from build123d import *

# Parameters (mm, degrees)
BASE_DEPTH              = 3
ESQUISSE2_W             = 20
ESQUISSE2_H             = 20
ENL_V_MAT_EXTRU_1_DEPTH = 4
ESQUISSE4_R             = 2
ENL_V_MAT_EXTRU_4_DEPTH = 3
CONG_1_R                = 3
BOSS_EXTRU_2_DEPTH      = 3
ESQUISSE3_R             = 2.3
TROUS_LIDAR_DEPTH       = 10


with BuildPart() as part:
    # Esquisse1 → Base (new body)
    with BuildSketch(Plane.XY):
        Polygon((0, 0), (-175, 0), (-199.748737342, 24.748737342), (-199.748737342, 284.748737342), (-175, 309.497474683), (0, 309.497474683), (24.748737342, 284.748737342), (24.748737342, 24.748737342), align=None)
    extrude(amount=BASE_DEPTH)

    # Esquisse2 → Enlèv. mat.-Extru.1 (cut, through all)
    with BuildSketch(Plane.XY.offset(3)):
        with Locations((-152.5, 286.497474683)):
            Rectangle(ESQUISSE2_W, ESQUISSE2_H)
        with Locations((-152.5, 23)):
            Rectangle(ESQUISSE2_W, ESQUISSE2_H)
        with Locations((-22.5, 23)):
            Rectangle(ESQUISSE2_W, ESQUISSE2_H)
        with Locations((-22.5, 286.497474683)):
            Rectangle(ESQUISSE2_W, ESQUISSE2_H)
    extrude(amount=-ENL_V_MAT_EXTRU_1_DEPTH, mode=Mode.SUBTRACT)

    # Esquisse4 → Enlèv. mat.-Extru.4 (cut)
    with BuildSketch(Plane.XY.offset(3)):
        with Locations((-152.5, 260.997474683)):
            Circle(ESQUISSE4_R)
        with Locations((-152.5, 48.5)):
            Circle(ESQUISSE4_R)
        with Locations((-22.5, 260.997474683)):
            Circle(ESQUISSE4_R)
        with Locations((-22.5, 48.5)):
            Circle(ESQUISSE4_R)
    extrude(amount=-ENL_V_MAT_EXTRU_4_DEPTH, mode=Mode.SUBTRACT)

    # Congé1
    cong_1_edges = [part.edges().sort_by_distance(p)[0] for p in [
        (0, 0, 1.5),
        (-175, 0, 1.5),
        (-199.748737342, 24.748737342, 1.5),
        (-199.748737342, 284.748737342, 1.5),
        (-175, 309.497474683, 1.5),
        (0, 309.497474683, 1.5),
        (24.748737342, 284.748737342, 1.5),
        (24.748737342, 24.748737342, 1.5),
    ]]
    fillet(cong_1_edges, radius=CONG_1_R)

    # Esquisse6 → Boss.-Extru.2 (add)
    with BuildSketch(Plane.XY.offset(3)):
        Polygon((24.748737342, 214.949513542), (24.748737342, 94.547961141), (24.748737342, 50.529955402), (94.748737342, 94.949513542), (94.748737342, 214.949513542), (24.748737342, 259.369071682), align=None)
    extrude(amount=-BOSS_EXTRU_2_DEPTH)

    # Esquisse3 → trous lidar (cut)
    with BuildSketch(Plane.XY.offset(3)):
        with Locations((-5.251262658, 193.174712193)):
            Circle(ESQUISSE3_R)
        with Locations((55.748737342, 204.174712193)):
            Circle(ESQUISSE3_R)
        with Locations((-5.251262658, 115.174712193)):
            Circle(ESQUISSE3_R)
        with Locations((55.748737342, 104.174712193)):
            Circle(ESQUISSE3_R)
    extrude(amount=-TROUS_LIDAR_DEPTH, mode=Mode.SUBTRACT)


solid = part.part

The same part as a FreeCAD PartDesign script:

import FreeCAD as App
import Part
import Sketcher
from FreeCAD import Vector


def edges_at(feature, points):
    """Names of the edges that pass closest to the given points."""
    edges = feature.Shape.Edges
    near = lambda p: min(range(len(edges)), key=lambda i: edges[i].distToShape(Part.Vertex(*p))[0])
    return sorted({f"Edge{near(p) + 1}" for p in points})

doc = App.newDocument("Part")
body = doc.addObject("PartDesign::Body", "Body")

# Sketch on XY plane
sketch1 = doc.addObject("Sketcher::SketchObject", "Sketch")
body.addObject(sketch1)
sketch1.AttachmentSupport = (doc.XY_Plane, [""])
sketch1.MapMode = "FlatFace"
sketch1.addGeometry([
    Part.LineSegment(Vector(-175, 0, 0), Vector(0, 0, 0)),  # 0
    Part.LineSegment(Vector(0, 0, 0), Vector(25, 25, 0)),  # 1
    Part.LineSegment(Vector(25, 25, 0), Vector(25, 285, 0)),  # 2
    Part.LineSegment(Vector(25, 285, 0), Vector(0, 309, 0)),  # 3
    Part.LineSegment(Vector(0, 309, 0), Vector(-175, 309, 0)),  # 4
    Part.LineSegment(Vector(-175, 309, 0), Vector(-200, 285, 0)),  # 5
    Part.LineSegment(Vector(-200, 285, 0), Vector(-200, 25, 0)),  # 6
    Part.LineSegment(Vector(-200, 25, 0), Vector(-175, 0, 0)),  # 7
], False)
sketch1.addConstraint([
    Sketcher.Constraint("Coincident", 0, 2, 1, 1),
    Sketcher.Constraint("Coincident", 1, 2, 2, 1),
    Sketcher.Constraint("Coincident", 2, 2, 3, 1),
    Sketcher.Constraint("Coincident", 3, 2, 4, 1),
    Sketcher.Constraint("Coincident", 4, 2, 5, 1),
    Sketcher.Constraint("Coincident", 5, 2, 6, 1),
    Sketcher.Constraint("Coincident", 6, 2, 7, 1),
    Sketcher.Constraint("Coincident", 7, 2, 0, 1),
    Sketcher.Constraint("Horizontal", 0),
    Sketcher.Constraint("Vertical", 2),
    Sketcher.Constraint("Horizontal", 4),
    Sketcher.Constraint("Vertical", 6),
    Sketcher.Constraint("Coincident", 0, 2, -1, 1),
    Sketcher.Constraint("PointOnObject", 3, 2, -2),
    Sketcher.Constraint("Perpendicular", 1, 3),
    Sketcher.Constraint("Perpendicular", 3, 5),
    Sketcher.Constraint("Perpendicular", 5, 7),
    Sketcher.Constraint("Horizontal", 2, 2, 5, 2),
    Sketcher.Constraint("Horizontal", 1, 2, 6, 2),
    Sketcher.Constraint("Vertical", 4, 2, 7, 2),
    Sketcher.Constraint("DistanceX", 0, 1, 0, 2, 175.0),
    Sketcher.Constraint("DistanceY", 2, 1, 2, 2, 260.0),
    Sketcher.Constraint("Distance", 1, 35.0),
])
pad1 = doc.addObject("PartDesign::Pad", "Pad")
body.addObject(pad1)
pad1.Profile = sketch1
pad1.Length = 3

# Sketch on XY plane
sketch2 = doc.addObject("Sketcher::SketchObject", "Sketch001")
body.addObject(sketch2)
sketch2.AttachmentSupport = (doc.XY_Plane, [""])
sketch2.MapMode = "FlatFace"
sketch2.AttachmentOffset = App.Placement(Vector(0, 0, 3), App.Rotation())
sketch2.addGeometry([
    Part.LineSegment(Vector(-162, 296, 0), Vector(-162, 276, 0)),  # 0
    Part.LineSegment(Vector(-162, 276, 0), Vector(-142, 276, 0)),  # 1
    Part.LineSegment(Vector(-142, 276, 0), Vector(-142, 296, 0)),  # 2
    Part.LineSegment(Vector(-142, 296, 0), Vector(-162, 296, 0)),  # 3
    Part.LineSegment(Vector(-162, 33, 0), Vector(-162, 13, 0)),  # 4
    Part.LineSegment(Vector(-162, 13, 0), Vector(-142, 13, 0)),  # 5
    Part.LineSegment(Vector(-142, 13, 0), Vector(-142, 33, 0)),  # 6
    Part.LineSegment(Vector(-142, 33, 0), Vector(-162, 33, 0)),  # 7
    Part.LineSegment(Vector(-32, 33, 0), Vector(-32, 13, 0)),  # 8
    Part.LineSegment(Vector(-32, 13, 0), Vector(-12, 13, 0)),  # 9
    Part.LineSegment(Vector(-12, 13, 0), Vector(-12, 33, 0)),  # 10
    Part.LineSegment(Vector(-12, 33, 0), Vector(-32, 33, 0)),  # 11
    Part.LineSegment(Vector(-32, 296, 0), Vector(-32, 276, 0)),  # 12
    Part.LineSegment(Vector(-32, 276, 0), Vector(-12, 276, 0)),  # 13
    Part.LineSegment(Vector(-12, 276, 0), Vector(-12, 296, 0)),  # 14
    Part.LineSegment(Vector(-12, 296, 0), Vector(-32, 296, 0)),  # 15
], False)
sketch2.addConstraint([
    Sketcher.Constraint("Coincident", 0, 2, 1, 1),
    Sketcher.Constraint("Coincident", 1, 2, 2, 1),
    Sketcher.Constraint("Coincident", 2, 2, 3, 1),
    Sketcher.Constraint("Coincident", 3, 2, 0, 1),
    Sketcher.Constraint("Coincident", 4, 2, 5, 1),
    Sketcher.Constraint("Coincident", 5, 2, 6, 1),
    Sketcher.Constraint("Coincident", 6, 2, 7, 1),
    Sketcher.Constraint("Coincident", 7, 2, 4, 1),
    Sketcher.Constraint("Coincident", 8, 2, 9, 1),
    Sketcher.Constraint("Coincident", 9, 2, 10, 1),
    Sketcher.Constraint("Coincident", 10, 2, 11, 1),
    Sketcher.Constraint("Coincident", 11, 2, 8, 1),
    Sketcher.Constraint("Coincident", 12, 2, 13, 1),
    Sketcher.Constraint("Coincident", 13, 2, 14, 1),
    Sketcher.Constraint("Coincident", 14, 2, 15, 1),
    Sketcher.Constraint("Coincident", 15, 2, 12, 1),
    Sketcher.Constraint("Vertical", 0),
    Sketcher.Constraint("Horizontal", 1),
    Sketcher.Constraint("Vertical", 2),
    Sketcher.Constraint("Horizontal", 3),
    Sketcher.Constraint("Vertical", 4),
    Sketcher.Constraint("Horizontal", 5),
    Sketcher.Constraint("Vertical", 6),
    Sketcher.Constraint("Horizontal", 7),
    Sketcher.Constraint("Vertical", 8),
    Sketcher.Constraint("Horizontal", 9),
    Sketcher.Constraint("Vertical", 10),
    Sketcher.Constraint("Horizontal", 11),
    Sketcher.Constraint("Vertical", 12),
    Sketcher.Constraint("Horizontal", 13),
    Sketcher.Constraint("Vertical", 14),
    Sketcher.Constraint("Horizontal", 15),
    Sketcher.Constraint("Horizontal", 5, 2, 8, 2),
    Sketcher.Constraint("Horizontal", 7, 2, 10, 2),
    Sketcher.Constraint("Horizontal", 1, 2, 12, 2),
    Sketcher.Constraint("Horizontal", 3, 2, 14, 2),
    Sketcher.Constraint("Vertical", 3, 2, 4, 2),
    Sketcher.Constraint("Vertical", 2, 2, 5, 2),
    Sketcher.Constraint("Vertical", 11, 2, 12, 2),
    Sketcher.Constraint("Vertical", 10, 2, 13, 2),
    Sketcher.Constraint("Equal", 7, 9),
    Sketcher.Constraint("Equal", 15, 0),
    Sketcher.Constraint("Equal", 2, 4),
    Sketcher.Constraint("DistanceX", 1, 1, 1, 2, 20.0),
    Sketcher.Constraint("DistanceY", -1, 1, 4, 2, 13.0),
    Sketcher.Constraint("DistanceX", 5, 2, 8, 2, 110.0),
    Sketcher.Constraint("DistanceX", 0, 2, -1, 1, 162.5),
    Sketcher.Constraint("DistanceY", -1, 1, 0, 2, 276.497475),
])
pocket1 = doc.addObject("PartDesign::Pocket", "Pocket")
body.addObject(pocket1)
pocket1.Profile = sketch2
pocket1.Type = "ThroughAll"

# Sketch on XY plane
sketch3 = doc.addObject("Sketcher::SketchObject", "Sketch002")
body.addObject(sketch3)
sketch3.AttachmentSupport = (doc.XY_Plane, [""])
sketch3.MapMode = "FlatFace"
sketch3.AttachmentOffset = App.Placement(Vector(0, 0, 3), App.Rotation())
sketch3.addGeometry([
    Part.Circle(Vector(-152.5, 261, 0), Vector(0, 0, 1), 2),
    Part.Circle(Vector(-152.5, 48.5, 0), Vector(0, 0, 1), 2),
    Part.Circle(Vector(-22.5, 261, 0), Vector(0, 0, 1), 2),
    Part.Circle(Vector(-22.5, 48.5, 0), Vector(0, 0, 1), 2),
], False)
sketch3.addConstraint([
    Sketcher.Constraint("Equal", 0, 1),
    Sketcher.Constraint("Equal", 1, 2),
    Sketcher.Constraint("Equal", 2, 3),
    Sketcher.Constraint("Horizontal", 0, 3, 2, 3),
    Sketcher.Constraint("Horizontal", 1, 3, 3, 3),
    Sketcher.Constraint("Vertical", 0, 3, 1, 3),
    Sketcher.Constraint("Vertical", 2, 3, 3, 3),
    Sketcher.Constraint("Diameter", 0, 4.0),
    Sketcher.Constraint("DistanceX", 0, 3, 2, 3, 130.0),
    Sketcher.Constraint("DistanceX", 0, 3, -1, 1, 152.5),
    Sketcher.Constraint("DistanceY", -1, 1, 1, 3, 48.5),
    Sketcher.Constraint("DistanceY", -1, 1, 0, 3, 260.997475),
])
pocket2 = doc.addObject("PartDesign::Pocket", "Pocket001")
body.addObject(pocket2)
pocket2.Profile = sketch3
pocket2.Length = 3
doc.recompute()

fillet = doc.addObject("PartDesign::Fillet", "Fillet")
body.addObject(fillet)
fillet.Base = (pocket2, edges_at(pocket2, [
    (0, 0, 1.5),
    (-175, 0, 1.5),
    (-199.749, 24.749, 1.5),
    (-199.749, 284.749, 1.5),
    (-175, 309.497, 1.5),
    (0, 309.497, 1.5),
    (24.749, 284.749, 1.5),
    (24.749, 24.749, 1.5),
]))
fillet.Radius = 3

# Sketch on XY plane
sketch4 = doc.addObject("Sketcher::SketchObject", "Sketch003")
body.addObject(sketch4)
sketch4.AttachmentSupport = (doc.XY_Plane, [""])
sketch4.MapMode = "FlatFace"
sketch4.AttachmentOffset = App.Placement(Vector(0, 0, 3), App.Rotation())
sketch4.addGeometry([
    Part.LineSegment(Vector(25, 51, 0), Vector(95, 95, 0)),
    Part.LineSegment(Vector(95, 95, 0), Vector(95, 215, 0)),
    Part.LineSegment(Vector(95, 215, 0), Vector(25, 259, 0)),
    Part.LineSegment(Vector(25, 259, 0), Vector(25, 51, 0)),
], False)
sketch4.addConstraint([
    Sketcher.Constraint("Coincident", 0, 2, 1, 1),
    Sketcher.Constraint("Coincident", 1, 2, 2, 1),
    Sketcher.Constraint("Coincident", 2, 2, 3, 1),
    Sketcher.Constraint("Coincident", 3, 2, 0, 1),
    Sketcher.Constraint("Vertical", 1),
    Sketcher.Constraint("Vertical", 3),
    Sketcher.Constraint("Equal", 0, 2),
    Sketcher.Constraint("DistanceY", 1, 1, 1, 2, 120.0),
    Sketcher.Constraint("DistanceX", 2, 2, 1, 2, 70.0),
    Sketcher.Constraint("DistanceY", 3, 2, 3, 1, 208.839116),
    Sketcher.Constraint("DistanceY", -1, 1, 2, 2, 259.369072),
    Sketcher.Constraint("DistanceX", -1, 1, 0, 2, 94.748737),
])
pad2 = doc.addObject("PartDesign::Pad", "Pad001")
body.addObject(pad2)
pad2.Profile = sketch4
pad2.Length = 3
pad2.Reversed = True

# Sketch on XY plane
sketch5 = doc.addObject("Sketcher::SketchObject", "Sketch004")
body.addObject(sketch5)
sketch5.AttachmentSupport = (doc.XY_Plane, [""])
sketch5.MapMode = "FlatFace"
sketch5.AttachmentOffset = App.Placement(Vector(0, 0, 3), App.Rotation())
sketch5.addGeometry([
    Part.Circle(Vector(-5.3, 193.2, 0), Vector(0, 0, 1), 2.3),
    Part.Circle(Vector(55.7, 204.2, 0), Vector(0, 0, 1), 2.3),
    Part.Circle(Vector(-5.3, 115.2, 0), Vector(0, 0, 1), 2.3),
    Part.Circle(Vector(55.7, 104.2, 0), Vector(0, 0, 1), 2.3),
], False)
sketch5.addConstraint([
    Sketcher.Constraint("Equal", 0, 1),
    Sketcher.Constraint("Equal", 1, 2),
    Sketcher.Constraint("Equal", 2, 3),
    Sketcher.Constraint("Vertical", 0, 3, 2, 3),
    Sketcher.Constraint("Vertical", 1, 3, 3, 3),
    Sketcher.Constraint("Diameter", 0, 4.6),
    Sketcher.Constraint("DistanceX", 0, 3, 1, 3, 61.0),
    Sketcher.Constraint("DistanceY", 0, 3, 1, 3, 11.0),
    Sketcher.Constraint("DistanceY", 2, 3, 0, 3, 78.0),
    Sketcher.Constraint("DistanceY", 3, 3, 2, 3, 11.0),
    Sketcher.Constraint("DistanceX", 0, 3, -1, 1, 5.251263),
    Sketcher.Constraint("DistanceY", -1, 1, 0, 3, 193.174712),
])
pocket3 = doc.addObject("PartDesign::Pocket", "Pocket002")
body.addObject(pocket3)
pocket3.Profile = sketch5
pocket3.Length = 10

doc.recompute()
